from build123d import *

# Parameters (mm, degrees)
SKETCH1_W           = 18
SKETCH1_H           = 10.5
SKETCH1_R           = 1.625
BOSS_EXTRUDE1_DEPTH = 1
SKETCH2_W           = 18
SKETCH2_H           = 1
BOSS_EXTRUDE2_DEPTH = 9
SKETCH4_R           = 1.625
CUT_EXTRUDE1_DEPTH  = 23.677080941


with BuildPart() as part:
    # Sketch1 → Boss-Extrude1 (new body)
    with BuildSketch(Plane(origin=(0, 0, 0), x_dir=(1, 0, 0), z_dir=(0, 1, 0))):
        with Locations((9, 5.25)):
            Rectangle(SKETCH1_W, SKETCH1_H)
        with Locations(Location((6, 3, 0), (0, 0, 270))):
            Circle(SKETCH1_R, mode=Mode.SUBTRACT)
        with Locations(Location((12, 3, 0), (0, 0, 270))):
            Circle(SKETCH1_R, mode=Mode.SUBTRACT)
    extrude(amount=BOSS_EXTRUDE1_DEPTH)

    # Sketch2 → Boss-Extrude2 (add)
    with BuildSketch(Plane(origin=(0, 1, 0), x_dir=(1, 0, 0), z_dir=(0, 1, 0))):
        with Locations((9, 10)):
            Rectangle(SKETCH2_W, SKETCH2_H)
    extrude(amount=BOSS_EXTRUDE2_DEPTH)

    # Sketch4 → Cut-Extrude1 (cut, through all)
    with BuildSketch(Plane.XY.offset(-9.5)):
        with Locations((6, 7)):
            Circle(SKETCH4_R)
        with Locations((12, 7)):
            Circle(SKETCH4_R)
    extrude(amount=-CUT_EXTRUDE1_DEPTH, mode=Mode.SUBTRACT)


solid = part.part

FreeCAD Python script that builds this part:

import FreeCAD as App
import Part
import Sketcher
from FreeCAD import Vector

doc = App.newDocument("Part")
body = doc.addObject("PartDesign::Body", "Body")

# Sketch on XZ plane
sketch1 = body.newObject("Sketcher::SketchObject", "Sketch")
sketch1.AttachmentSupport = (doc.getObject("XZ_Plane"), [""])
sketch1.MapMode = "FlatFace"
sketch1.addGeometry([
    Part.LineSegment(Vector(0, -10.5, 0), Vector(0, 0, 0)),  # 0
    Part.LineSegment(Vector(0, 0, 0), Vector(18, 0, 0)),  # 1
    Part.LineSegment(Vector(18, 0, 0), Vector(18, -10.5, 0)),  # 2
    Part.LineSegment(Vector(18, -10.5, 0), Vector(0, -10.5, 0)),  # 3
    Part.Circle(Vector(6, -3, 0), Vector(0, 0, 1), 1.6),  # 4
    Part.Circle(Vector(12, -3, 0), Vector(0, 0, 1), 1.6),  # 5
], False)
sketch1.addConstraint([
    Sketcher.Constraint("Coincident", 0, 2, 1, 1),
    Sketcher.Constraint("Coincident", 1, 2, 2, 1),
    Sketcher.Constraint("Coincident", 2, 2, 3, 1),
    Sketcher.Constraint("Coincident", 3, 2, 0, 1),
    Sketcher.Constraint("Vertical", 0),
    Sketcher.Constraint("Horizontal", 1),
    Sketcher.Constraint("Vertical", 2),
    Sketcher.Constraint("Horizontal", 3),
    Sketcher.Constraint("Coincident", 0, 2, -1, 1),
    Sketcher.Constraint("Equal", 4, 5),
    Sketcher.Constraint("Horizontal", 4, 3, 5, 3),
    Sketcher.Constraint("Diameter", 4, 3.25),
    Sketcher.Constraint("DistanceX", 1, 1, 1, 2, 18.0),
    Sketcher.Constraint("DistanceY", 0, 1, 0, 2, 10.5),
    Sketcher.Constraint("DistanceX", -1, 1, 4, 3, 6.0),
    Sketcher.Constraint("DistanceY", 4, 3, -1, 1, 3.0),
    Sketcher.Constraint("DistanceX", -1, 1, 5, 3, 12.0),
])
pad1 = body.newObject("PartDesign::Pad", "Pad")
pad1.Profile = sketch1
pad1.Length = 1
pad1.Reversed = True

# Sketch on XZ plane
sketch2 = body.newObject("Sketcher::SketchObject", "Sketch001")
sketch2.AttachmentSupport = (doc.getObject("XZ_Plane"), [""])
sketch2.MapMode = "FlatFace"
sketch2.AttachmentOffset = App.Placement(Vector(0, 0, -1), App.Rotation())
sketch2.addGeometry([
    Part.LineSegment(Vector(0, -10.5, 0), Vector(0, -9.5, 0)),
    Part.LineSegment(Vector(0, -9.5, 0), Vector(18, -9.5, 0)),
    Part.LineSegment(Vector(18, -9.5, 0), Vector(18, -10.5, 0)),
    Part.LineSegment(Vector(18, -10.5, 0), Vector(0, -10.5, 0)),
], False)
sketch2.addConstraint([
    Sketcher.Constraint("Coincident", 0, 2, 1, 1),
    Sketcher.Constraint("Coincident", 1, 2, 2, 1),
    Sketcher.Constraint("Coincident", 2, 2, 3, 1),
    Sketcher.Constraint("Coincident", 3, 2, 0, 1),
    Sketcher.Constraint("Vertical", 0),
    Sketcher.Constraint("Horizontal", 1),
    Sketcher.Constraint("Vertical", 2),
    Sketcher.Constraint("Horizontal", 3),
    Sketcher.Constraint("PointOnObject", 0, 2, -2),
    Sketcher.Constraint("DistanceX", 1, 1, 1, 2, 18.0),
    Sketcher.Constraint("DistanceY", 0, 1, 0, 2, 1.0),
    Sketcher.Constraint("DistanceY", 0, 2, -1, 1, 9.5),
])
pad2 = body.newObject("PartDesign::Pad", "Pad001")
pad2.Profile = sketch2
pad2.Length = 9
pad2.Reversed = True

# Sketch on XY plane
sketch3 = body.newObject("Sketcher::SketchObject", "Sketch002")
sketch3.AttachmentSupport = (doc.getObject("XY_Plane"), [""])
sketch3.MapMode = "FlatFace"
sketch3.AttachmentOffset = App.Placement(Vector(0, 0, -9.5), App.Rotation())
sketch3.addGeometry([
    Part.Circle(Vector(6, 7, 0), Vector(0, 0, 1), 1.6),
    Part.Circle(Vector(12, 7, 0), Vector(0, 0, 1), 1.6),
], False)
sketch3.addConstraint([
    Sketcher.Constraint("Equal", 0, 1),
    Sketcher.Constraint("Horizontal", 0, 3, 1, 3),
    Sketcher.Constraint("Diameter", 0, 3.25),
    Sketcher.Constraint("DistanceX", -1, 1, 0, 3, 6.0),
    Sketcher.Constraint("DistanceY", -1, 1, 0, 3, 7.0),
    Sketcher.Constraint("DistanceX", -1, 1, 1, 3, 12.0),
])
pocket1 = body.newObject("PartDesign::Pocket", "Pocket")
pocket1.Profile = sketch3
pocket1.Type = "ThroughAll"

doc.recompute()
